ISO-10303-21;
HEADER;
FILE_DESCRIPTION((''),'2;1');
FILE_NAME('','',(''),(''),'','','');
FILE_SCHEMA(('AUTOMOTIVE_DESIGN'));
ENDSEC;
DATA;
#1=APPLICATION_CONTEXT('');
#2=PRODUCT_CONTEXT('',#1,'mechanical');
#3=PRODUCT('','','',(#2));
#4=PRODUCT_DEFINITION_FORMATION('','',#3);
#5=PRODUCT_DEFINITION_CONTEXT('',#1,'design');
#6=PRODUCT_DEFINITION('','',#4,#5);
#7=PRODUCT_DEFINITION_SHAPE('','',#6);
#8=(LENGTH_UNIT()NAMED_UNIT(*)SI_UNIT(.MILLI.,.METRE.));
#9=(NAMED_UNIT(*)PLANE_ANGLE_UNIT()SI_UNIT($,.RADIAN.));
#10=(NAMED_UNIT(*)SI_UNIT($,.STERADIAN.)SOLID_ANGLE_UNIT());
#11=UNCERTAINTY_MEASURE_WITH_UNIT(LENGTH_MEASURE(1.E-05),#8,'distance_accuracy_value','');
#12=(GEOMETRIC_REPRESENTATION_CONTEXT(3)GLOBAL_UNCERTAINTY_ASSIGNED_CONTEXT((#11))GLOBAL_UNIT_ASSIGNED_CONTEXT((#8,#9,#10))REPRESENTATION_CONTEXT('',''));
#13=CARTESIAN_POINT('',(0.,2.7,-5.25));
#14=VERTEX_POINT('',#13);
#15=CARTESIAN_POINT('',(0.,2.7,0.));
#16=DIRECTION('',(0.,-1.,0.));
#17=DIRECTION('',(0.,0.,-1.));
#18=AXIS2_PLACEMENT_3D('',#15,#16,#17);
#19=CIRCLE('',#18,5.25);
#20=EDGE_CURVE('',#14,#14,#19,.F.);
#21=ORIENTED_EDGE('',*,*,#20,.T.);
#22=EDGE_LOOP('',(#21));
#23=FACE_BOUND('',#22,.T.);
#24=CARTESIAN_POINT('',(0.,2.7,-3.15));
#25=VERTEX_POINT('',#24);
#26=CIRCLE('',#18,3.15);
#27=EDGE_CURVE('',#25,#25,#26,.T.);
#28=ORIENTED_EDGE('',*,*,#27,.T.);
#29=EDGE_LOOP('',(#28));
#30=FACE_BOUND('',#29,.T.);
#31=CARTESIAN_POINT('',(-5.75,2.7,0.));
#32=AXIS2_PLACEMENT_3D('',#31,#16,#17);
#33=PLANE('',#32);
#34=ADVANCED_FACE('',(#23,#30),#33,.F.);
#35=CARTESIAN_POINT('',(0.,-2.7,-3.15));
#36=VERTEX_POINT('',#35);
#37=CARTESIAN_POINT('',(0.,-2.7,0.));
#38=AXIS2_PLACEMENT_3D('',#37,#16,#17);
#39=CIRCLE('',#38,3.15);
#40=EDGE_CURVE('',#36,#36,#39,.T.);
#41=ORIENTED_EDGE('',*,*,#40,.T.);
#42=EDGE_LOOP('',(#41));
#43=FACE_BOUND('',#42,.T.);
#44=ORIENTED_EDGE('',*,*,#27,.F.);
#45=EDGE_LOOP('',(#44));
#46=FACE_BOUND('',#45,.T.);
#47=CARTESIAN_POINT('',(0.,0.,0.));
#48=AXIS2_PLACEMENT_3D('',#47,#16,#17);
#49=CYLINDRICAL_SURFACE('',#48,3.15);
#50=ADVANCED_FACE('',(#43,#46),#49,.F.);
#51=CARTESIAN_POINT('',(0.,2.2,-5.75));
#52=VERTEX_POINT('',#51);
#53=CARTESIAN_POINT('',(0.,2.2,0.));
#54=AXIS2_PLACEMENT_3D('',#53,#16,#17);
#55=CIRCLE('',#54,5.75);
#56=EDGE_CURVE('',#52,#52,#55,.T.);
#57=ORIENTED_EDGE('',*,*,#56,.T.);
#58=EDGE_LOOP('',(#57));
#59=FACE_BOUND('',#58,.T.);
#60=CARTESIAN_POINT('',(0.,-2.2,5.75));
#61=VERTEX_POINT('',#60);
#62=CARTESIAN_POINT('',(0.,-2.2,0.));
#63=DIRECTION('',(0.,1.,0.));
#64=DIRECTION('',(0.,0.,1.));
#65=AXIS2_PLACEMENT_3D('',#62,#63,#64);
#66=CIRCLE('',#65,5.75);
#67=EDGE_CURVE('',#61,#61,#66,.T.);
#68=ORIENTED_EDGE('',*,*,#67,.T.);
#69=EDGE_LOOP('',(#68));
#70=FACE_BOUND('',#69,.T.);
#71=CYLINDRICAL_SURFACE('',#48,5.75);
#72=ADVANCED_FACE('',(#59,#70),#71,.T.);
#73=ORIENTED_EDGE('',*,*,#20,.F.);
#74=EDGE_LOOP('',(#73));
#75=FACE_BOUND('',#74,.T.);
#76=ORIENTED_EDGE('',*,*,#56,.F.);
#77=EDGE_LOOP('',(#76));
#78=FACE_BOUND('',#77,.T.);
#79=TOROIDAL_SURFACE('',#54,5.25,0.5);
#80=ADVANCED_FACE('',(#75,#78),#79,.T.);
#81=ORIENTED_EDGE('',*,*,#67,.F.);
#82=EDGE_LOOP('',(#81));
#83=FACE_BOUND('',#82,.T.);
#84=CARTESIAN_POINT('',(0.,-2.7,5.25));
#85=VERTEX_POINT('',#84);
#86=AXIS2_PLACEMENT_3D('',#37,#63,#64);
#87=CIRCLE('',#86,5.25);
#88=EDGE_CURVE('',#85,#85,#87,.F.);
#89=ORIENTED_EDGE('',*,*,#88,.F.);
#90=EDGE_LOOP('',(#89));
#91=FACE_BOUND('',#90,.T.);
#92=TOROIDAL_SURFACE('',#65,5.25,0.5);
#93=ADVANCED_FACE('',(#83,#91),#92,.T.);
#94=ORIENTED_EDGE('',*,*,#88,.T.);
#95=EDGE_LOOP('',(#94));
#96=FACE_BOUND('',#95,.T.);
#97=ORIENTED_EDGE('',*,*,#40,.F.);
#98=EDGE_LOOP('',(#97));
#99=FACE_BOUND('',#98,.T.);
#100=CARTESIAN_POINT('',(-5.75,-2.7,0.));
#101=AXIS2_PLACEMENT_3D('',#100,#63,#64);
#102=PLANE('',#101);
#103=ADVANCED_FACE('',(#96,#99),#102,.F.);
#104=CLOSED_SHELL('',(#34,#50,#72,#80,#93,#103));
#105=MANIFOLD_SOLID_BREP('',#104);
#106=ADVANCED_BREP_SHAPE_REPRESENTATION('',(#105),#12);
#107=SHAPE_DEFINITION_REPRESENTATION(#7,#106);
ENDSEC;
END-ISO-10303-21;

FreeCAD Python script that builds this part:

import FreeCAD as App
import Part
import Sketcher

V = App.Vector


def edges_at(feature, points):
    """Names of the edges that pass closest to the given points."""
    edges = feature.Shape.Edges
    near = lambda p: min(range(len(edges)), key=lambda i: edges[i].distToShape(Part.Vertex(*p))[0])
    return sorted({f"Edge{near(p) + 1}" for p in points})


def add_polygon(sketch, points):
    """Adds a closed chain of lines whose ends are joined by coincident constraints."""
    first, n = sketch.GeometryCount, len(points)
    for a, b in zip(points, points[1:] + points[:1]):
        sketch.addGeometry(Part.LineSegment(App.Vector(*a, 0), App.Vector(*b, 0)), False)
    for i in range(n):
        sketch.addConstraint(Sketcher.Constraint("Coincident", first + i, 2, first + (i + 1) % n, 1))

doc = App.newDocument("Part")
params = doc.addObject("Spreadsheet::Sheet", "Params")
for row, (alias, value) in enumerate([
    ("sketch1_width", "2.6 mm"),
    ("sketch1_height", "5.4 mm"),
    ("revolution_angle", "360 deg"),
    ("fillet_radius", "0.5 mm"),
], start=1):
    params.set(f"A{row}", alias)
    params.set(f"B{row}", "=" + value)
    params.setAlias(f"B{row}", alias)

body = doc.addObject("PartDesign::Body", "Body")

# Sketch on XY plane
sketch1 = body.newObject("Sketcher::SketchObject", "Sketch")
sketch1.AttachmentSupport = (doc.getObject("XY_Plane"), [""])
sketch1.MapMode = "FlatFace"
add_polygon(sketch1, [(-5.75, 2.7), (-5.75, -2.7), (-3.15, -2.7), (-3.15, 2.7)])  # lines 0-3
sketch1.addConstraint(Sketcher.Constraint("Vertical", 0))
sketch1.addConstraint(Sketcher.Constraint("Horizontal", 1))
sketch1.addConstraint(Sketcher.Constraint("Vertical", 2))
sketch1.addConstraint(Sketcher.Constraint("Horizontal", 3))
sketch1.addConstraint(Sketcher.Constraint("DistanceX", 1, 1, 1, 2, 2.6))
sketch1.addConstraint(Sketcher.Constraint("DistanceY", 0, 2, 0, 1, 5.4))
sketch1.addConstraint(Sketcher.Constraint("DistanceY", 0, 2, -1, 1, 2.7))
sketch1.addConstraint(Sketcher.Constraint("DistanceX", 0, 2, -1, 1, 5.75))
sketch1.setExpression("Constraints[8]", "Params.sketch1_width")
sketch1.setExpression("Constraints[9]", "Params.sketch1_height")
revolution = body.newObject("PartDesign::Revolution", "Revolution")
revolution.Profile = sketch1
revolution.ReferenceAxis = (sketch1, ["V_Axis"])
revolution.setExpression("Angle", "Params.revolution_angle")
doc.recompute()

fillet = body.newObject("PartDesign::Fillet", "Fillet")
fillet.Base = (revolution, edges_at(revolution, [(0, 2.7, 5.75), (0, -2.7, 5.75)]))
fillet.setExpression("Radius", "Params.fillet_radius")

doc.recompute()
